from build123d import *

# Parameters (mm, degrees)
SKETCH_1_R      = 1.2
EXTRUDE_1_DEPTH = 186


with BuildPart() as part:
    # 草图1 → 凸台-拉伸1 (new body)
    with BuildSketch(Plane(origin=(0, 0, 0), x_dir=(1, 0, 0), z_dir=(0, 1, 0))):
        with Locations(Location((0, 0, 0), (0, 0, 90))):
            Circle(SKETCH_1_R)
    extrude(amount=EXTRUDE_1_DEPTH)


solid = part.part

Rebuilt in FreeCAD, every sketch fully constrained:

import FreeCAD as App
import Part
import Sketcher
from FreeCAD import Vector
Q = App.Units.Quantity

doc = App.newDocument("Part")
params = doc.addObject("Spreadsheet::Sheet", "Params")
for row, (alias, value) in enumerate([
    ("sketch1_diameter", "2.4 mm"),
    ("pad1_length", "186 mm"),
], start=1):
    params.set(f"A{row}", alias)
    params.set(f"B{row}", "=" + value)
    params.setAlias(f"B{row}", alias)

body = doc.addObject("PartDesign::Body", "Body")

sketch1 = body.newObject("Sketcher::SketchObject", "Sketch")
sketch1.AttachmentSupport = (doc.getObject("XZ_Plane"), [""])
sketch1.MapMode = "FlatFace"
sketch1.addGeometry(Part.Circle(Vector(0, 0, 0), Vector(0, 0, 1), 1.2), False)
sketch1.addConstraint(Sketcher.Constraint("Coincident", 0, 3, -1, 1))
sketch1.addConstraint(Sketcher.Constraint("Diameter", 0, Q("2.4 mm")))
sketch1.setExpression("Constraints[1]", "Params.sketch1_diameter")
pad1 = body.newObject("PartDesign::Pad", "Pad")
pad1.Profile = sketch1
pad1.setExpression("Length", "Params.pad1_length")
pad1.Reversed = True

doc.recompute()
